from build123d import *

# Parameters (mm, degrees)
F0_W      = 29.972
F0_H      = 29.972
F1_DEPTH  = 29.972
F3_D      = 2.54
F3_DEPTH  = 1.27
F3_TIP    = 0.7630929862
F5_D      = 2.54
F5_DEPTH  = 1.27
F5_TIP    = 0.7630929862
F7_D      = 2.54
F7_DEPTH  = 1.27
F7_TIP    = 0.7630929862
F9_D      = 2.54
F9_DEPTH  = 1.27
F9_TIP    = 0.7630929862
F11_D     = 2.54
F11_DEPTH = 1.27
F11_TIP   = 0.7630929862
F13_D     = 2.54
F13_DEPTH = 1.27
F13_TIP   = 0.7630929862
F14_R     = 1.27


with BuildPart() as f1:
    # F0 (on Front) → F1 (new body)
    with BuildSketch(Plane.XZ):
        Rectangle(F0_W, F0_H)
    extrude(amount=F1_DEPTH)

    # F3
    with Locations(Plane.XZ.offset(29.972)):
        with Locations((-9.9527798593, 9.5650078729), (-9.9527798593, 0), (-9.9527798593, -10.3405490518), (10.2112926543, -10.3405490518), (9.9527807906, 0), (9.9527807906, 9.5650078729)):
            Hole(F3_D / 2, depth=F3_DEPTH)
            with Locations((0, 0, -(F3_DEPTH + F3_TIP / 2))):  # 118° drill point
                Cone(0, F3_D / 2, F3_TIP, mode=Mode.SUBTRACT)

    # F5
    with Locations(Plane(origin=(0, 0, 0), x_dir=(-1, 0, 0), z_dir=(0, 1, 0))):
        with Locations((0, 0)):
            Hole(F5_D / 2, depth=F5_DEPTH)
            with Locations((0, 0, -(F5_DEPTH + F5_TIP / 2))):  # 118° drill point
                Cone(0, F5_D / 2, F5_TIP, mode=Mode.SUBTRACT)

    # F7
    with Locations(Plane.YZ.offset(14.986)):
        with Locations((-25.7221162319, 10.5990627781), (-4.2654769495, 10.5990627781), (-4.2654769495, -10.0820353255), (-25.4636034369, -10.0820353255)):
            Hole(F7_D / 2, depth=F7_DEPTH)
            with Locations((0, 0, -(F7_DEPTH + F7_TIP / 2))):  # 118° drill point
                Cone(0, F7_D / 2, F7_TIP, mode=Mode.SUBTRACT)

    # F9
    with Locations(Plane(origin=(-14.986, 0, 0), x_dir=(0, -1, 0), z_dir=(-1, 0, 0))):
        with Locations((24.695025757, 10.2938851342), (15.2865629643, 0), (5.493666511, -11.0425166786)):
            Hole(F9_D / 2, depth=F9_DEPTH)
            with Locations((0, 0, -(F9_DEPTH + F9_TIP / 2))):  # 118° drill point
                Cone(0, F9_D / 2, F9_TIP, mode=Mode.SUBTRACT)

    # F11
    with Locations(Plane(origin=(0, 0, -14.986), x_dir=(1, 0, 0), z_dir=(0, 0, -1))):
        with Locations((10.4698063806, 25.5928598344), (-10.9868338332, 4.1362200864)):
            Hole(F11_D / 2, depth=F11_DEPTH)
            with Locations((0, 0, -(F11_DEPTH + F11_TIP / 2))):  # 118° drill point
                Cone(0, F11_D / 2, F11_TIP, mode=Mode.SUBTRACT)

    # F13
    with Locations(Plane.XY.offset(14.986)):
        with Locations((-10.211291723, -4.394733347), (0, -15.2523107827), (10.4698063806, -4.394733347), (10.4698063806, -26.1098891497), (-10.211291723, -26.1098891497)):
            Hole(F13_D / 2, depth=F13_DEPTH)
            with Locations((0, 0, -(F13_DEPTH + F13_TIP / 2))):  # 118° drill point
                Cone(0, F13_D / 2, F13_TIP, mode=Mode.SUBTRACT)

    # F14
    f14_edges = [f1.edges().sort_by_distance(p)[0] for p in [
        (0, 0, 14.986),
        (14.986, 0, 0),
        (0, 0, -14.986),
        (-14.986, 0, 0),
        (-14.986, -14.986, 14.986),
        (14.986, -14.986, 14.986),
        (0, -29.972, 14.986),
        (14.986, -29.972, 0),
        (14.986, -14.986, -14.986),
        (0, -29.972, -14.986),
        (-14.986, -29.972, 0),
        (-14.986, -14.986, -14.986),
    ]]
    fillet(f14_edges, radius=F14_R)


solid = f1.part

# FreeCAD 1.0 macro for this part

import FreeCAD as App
import Part
import Sketcher
Q = App.Units.Quantity


def edges_at(feature, points):
    """Names of the edges that pass closest to the given points."""
    edges = feature.Shape.Edges
    near = lambda p: min(range(len(edges)), key=lambda i: edges[i].distToShape(Part.Vertex(*p))[0])
    return sorted({f"Edge{near(p) + 1}" for p in points})


def add_polygon(sketch, points):
    """Adds a closed chain of lines whose ends are joined by coincident constraints."""
    first, n = sketch.GeometryCount, len(points)
    for a, b in zip(points, points[1:] + points[:1]):
        sketch.addGeometry(Part.LineSegment(App.Vector(*a, 0), App.Vector(*b, 0)), False)
    for i in range(n):
        sketch.addConstraint(Sketcher.Constraint("Coincident", first + i, 2, first + (i + 1) % n, 1))

doc = App.newDocument("Part")
body = doc.addObject("PartDesign::Body", "Body")

# Sketch on XZ plane
sketch1 = body.newObject("Sketcher::SketchObject", "Sketch")
sketch1.AttachmentSupport = (doc.getObject("XZ_Plane"), [""])
sketch1.MapMode = "FlatFace"
add_polygon(sketch1, [(-15, 15), (-15, -15), (15, -15), (15, 15)])  # lines 0-3
sketch1.addConstraint([
    Sketcher.Constraint("Vertical", 0),
    Sketcher.Constraint("Horizontal", 1),
    Sketcher.Constraint("Vertical", 2),
    Sketcher.Constraint("Horizontal", 3),
    Sketcher.Constraint("Symmetric", 0, 2, 2, 2, -1, 1),
    Sketcher.Constraint("Equal", 3, 0),
    Sketcher.Constraint("DistanceX", 1, 1, 1, 2, Q("1.18 in")),
])
pad1 = body.newObject("PartDesign::Pad", "Pad")
pad1.Profile = sketch1
pad1.Length = Q("1.18 in")

# Sketch on XZ plane
sketch2 = body.newObject("Sketcher::SketchObject", "Sketch001")
sketch2.AttachmentSupport = (doc.getObject("XZ_Plane"), [""])
sketch2.MapMode = "FlatFace"
sketch2.AttachmentOffset = App.Placement(App.Vector(0, 0, 1.18 * 25.4), App.Rotation())
sketch2.addGeometry([
    Part.Circle(App.Vector(-10, 9.6, 0), App.Vector(0, 0, 1), 1.3),  # 0
    Part.Circle(App.Vector(-10, 0, 0), App.Vector(0, 0, 1), 1.3),  # 1
    Part.Circle(App.Vector(-10, -10.3, 0), App.Vector(0, 0, 1), 1.3),  # 2
    Part.Circle(App.Vector(10.2, -10.3, 0), App.Vector(0, 0, 1), 1.3),  # 3
    Part.Circle(App.Vector(10, 0, 0), App.Vector(0, 0, 1), 1.3),  # 4
    Part.Circle(App.Vector(10, 9.6, 0), App.Vector(0, 0, 1), 1.3),  # 5
], False)
sketch2.addConstraint([
    Sketcher.Constraint("Equal", 0, 1),
    Sketcher.Constraint("Equal", 1, 2),
    Sketcher.Constraint("Equal", 2, 3),
    Sketcher.Constraint("Equal", 3, 4),
    Sketcher.Constraint("Equal", 4, 5),
    Sketcher.Constraint("Symmetric", 1, 3, 4, 3, -1, 1),
    Sketcher.Constraint("Symmetric", 0, 3, 5, 3, -2),
    Sketcher.Constraint("PointOnObject", 1, 3, -1),
    Sketcher.Constraint("Horizontal", 2, 3, 3, 3),
    Sketcher.Constraint("Vertical", 0, 3, 1, 3),
    Sketcher.Constraint("Vertical", 1, 3, 2, 3),
    Sketcher.Constraint("Diameter", 0, Q("0.1 in")),
    Sketcher.Constraint("DistanceX", 0, 3, -1, 1, 9.95278),
    Sketcher.Constraint("DistanceY", 2, 3, -1, 1, 10.340549),
    Sketcher.Constraint("DistanceX", 4, 3, 3, 3, 0.258512),
    Sketcher.Constraint("DistanceY", -1, 1, 0, 3, 9.565008),
])
doc.recompute()
hole = body.newObject("PartDesign::Hole", "Hole")
hole.Profile = sketch2
hole.ThreadType = "None"
hole.Diameter = Q("0.1 in")
hole.DepthType = "Dimension"
hole.Depth = Q("0.05 in")
hole.DrillPoint = "Angled"
hole.DrillPointAngle = 118

# Sketch on XZ plane
sketch3 = body.newObject("Sketcher::SketchObject", "Sketch002")
sketch3.AttachmentSupport = (doc.getObject("XZ_Plane"), [""])
sketch3.MapMode = "FlatFace"
sketch3.addGeometry(Part.Circle(App.Vector(0, 0, 0), App.Vector(0, 0, 1), 1.3), False)
sketch3.addConstraint([
    Sketcher.Constraint("Coincident", 0, 3, -1, 1),
    Sketcher.Constraint("Diameter", 0, Q("0.1 in")),
])
doc.recompute()
hole2 = body.newObject("PartDesign::Hole", "Hole001")
hole2.Profile = sketch3
hole2.ThreadType = "None"
hole2.Diameter = Q("0.1 in")
hole2.DepthType = "Dimension"
hole2.Depth = Q("0.05 in")
hole2.DrillPoint = "Angled"
hole2.DrillPointAngle = 118
hole2.Reversed = True

# Sketch on YZ plane
sketch4 = body.newObject("Sketcher::SketchObject", "Sketch003")
sketch4.AttachmentSupport = (doc.getObject("YZ_Plane"), [""])
sketch4.MapMode = "FlatFace"
sketch4.AttachmentOffset = App.Placement(App.Vector(0, 0, 0.59 * 25.4), App.Rotation())
sketch4.addGeometry([
    Part.Circle(App.Vector(-25.7, 10.6, 0), App.Vector(0, 0, 1), 1.3),
    Part.Circle(App.Vector(-4.3, 10.6, 0), App.Vector(0, 0, 1), 1.3),
    Part.Circle(App.Vector(-4.3, -10.1, 0), App.Vector(0, 0, 1), 1.3),
    Part.Circle(App.Vector(-25.5, -10.1, 0), App.Vector(0, 0, 1), 1.3),
], False)
sketch4.addConstraint([
    Sketcher.Constraint("Equal", 0, 1),
    Sketcher.Constraint("Equal", 1, 2),
    Sketcher.Constraint("Equal", 2, 3),
    Sketcher.Constraint("Horizontal", 0, 3, 1, 3),
    Sketcher.Constraint("Horizontal", 2, 3, 3, 3),
    Sketcher.Constraint("Vertical", 1, 3, 2, 3),
    Sketcher.Constraint("Diameter", 0, Q("0.1 in")),
    Sketcher.Constraint("DistanceY", 2, 3, 1, 3, 20.681098),
    Sketcher.Constraint("DistanceX", 0, 3, 1, 3, 21.456639),
    Sketcher.Constraint("DistanceX", 0, 3, -1, 1, 25.722116),
    Sketcher.Constraint("DistanceY", -1, 1, 0, 3, 10.599063),
    Sketcher.Constraint("DistanceX", 3, 3, -1, 1, 25.463603),
])
doc.recompute()
hole3 = body.newObject("PartDesign::Hole", "Hole002")
hole3.Profile = sketch4
hole3.ThreadType = "None"
hole3.Diameter = Q("0.1 in")
hole3.DepthType = "Dimension"
hole3.Depth = Q("0.05 in")
hole3.DrillPoint = "Angled"
hole3.DrillPointAngle = 118

# Sketch on YZ plane
sketch5 = body.newObject("Sketcher::SketchObject", "Sketch004")
sketch5.AttachmentSupport = (doc.getObject("YZ_Plane"), [""])
sketch5.MapMode = "FlatFace"
sketch5.AttachmentOffset = App.Placement(App.Vector(0, 0, -0.59 * 25.4), App.Rotation())
sketch5.addGeometry([
    Part.Circle(App.Vector(-24.7, 10.3, 0), App.Vector(0, 0, 1), 1.3),
    Part.Circle(App.Vector(-15.3, 0, 0), App.Vector(0, 0, 1), 1.3),
    Part.Circle(App.Vector(-5.5, -11, 0), App.Vector(0, 0, 1), 1.3),
], False)
sketch5.addConstraint([
    Sketcher.Constraint("Equal", 0, 1),
    Sketcher.Constraint("Equal", 1, 2),
    Sketcher.Constraint("PointOnObject", 1, 3, -1),
    Sketcher.Constraint("Diameter", 0, Q("0.1 in")),
    Sketcher.Constraint("DistanceY", 2, 3, 0, 3, 21.336402),
    Sketcher.Constraint("DistanceX", 0, 3, 2, 3, 19.201359),
    Sketcher.Constraint("DistanceX", 0, 3, -1, 1, 24.695026),
    Sketcher.Constraint("DistanceY", -1, 1, 0, 3, 10.293885),
    Sketcher.Constraint("DistanceX", 1, 3, -1, 1, 15.286563),
])
doc.recompute()
hole4 = body.newObject("PartDesign::Hole", "Hole003")
hole4.Profile = sketch5
hole4.ThreadType = "None"
hole4.Diameter = Q("0.1 in")
hole4.DepthType = "Dimension"
hole4.Depth = Q("0.05 in")
hole4.DrillPoint = "Angled"
hole4.DrillPointAngle = 118
hole4.Reversed = True

# Sketch on XY plane
sketch6 = body.newObject("Sketcher::SketchObject", "Sketch005")
sketch6.AttachmentSupport = (doc.getObject("XY_Plane"), [""])
sketch6.MapMode = "FlatFace"
sketch6.AttachmentOffset = App.Placement(App.Vector(0, 0, -0.59 * 25.4), App.Rotation())
sketch6.addGeometry([
    Part.Circle(App.Vector(10.5, -25.6, 0), App.Vector(0, 0, 1), 1.3),
    Part.Circle(App.Vector(-11, -4.1, 0), App.Vector(0, 0, 1), 1.3),
], False)
sketch6.addConstraint([
    Sketcher.Constraint("Equal", 0, 1),
    Sketcher.Constraint("Diameter", 0, Q("0.1 in")),
    Sketcher.Constraint("DistanceY", 0, 3, -1, 1, 25.59286),
    Sketcher.Constraint("DistanceY", 1, 3, -1, 1, 4.13622),
    Sketcher.Constraint("DistanceX", 1, 3, 0, 3, 21.45664),
    Sketcher.Constraint("DistanceX", -1, 1, 0, 3, 10.469806),
])
doc.recompute()
hole5 = body.newObject("PartDesign::Hole", "Hole004")
hole5.Profile = sketch6
hole5.ThreadType = "None"
hole5.Diameter = Q("0.1 in")
hole5.DepthType = "Dimension"
hole5.Depth = Q("0.05 in")
hole5.DrillPoint = "Angled"
hole5.DrillPointAngle = 118
hole5.Reversed = True

# Sketch on XY plane
sketch7 = body.newObject("Sketcher::SketchObject", "Sketch006")
sketch7.AttachmentSupport = (doc.getObject("XY_Plane"), [""])
sketch7.MapMode = "FlatFace"
sketch7.AttachmentOffset = App.Placement(App.Vector(0, 0, 0.59 * 25.4), App.Rotation())
sketch7.addGeometry([
    Part.Circle(App.Vector(-10.2, -4.4, 0), App.Vector(0, 0, 1), 1.3),  # 0
    Part.Circle(App.Vector(0, -15.3, 0), App.Vector(0, 0, 1), 1.3),  # 1
    Part.Circle(App.Vector(10.5, -4.4, 0), App.Vector(0, 0, 1), 1.3),  # 2
    Part.Circle(App.Vector(10.5, -26.1, 0), App.Vector(0, 0, 1), 1.3),  # 3
    Part.Circle(App.Vector(-10.2, -26.1, 0), App.Vector(0, 0, 1), 1.3),  # 4
], False)
sketch7.addConstraint([
    Sketcher.Constraint("Equal", 0, 1),
    Sketcher.Constraint("Equal", 1, 2),
    Sketcher.Constraint("Equal", 2, 3),
    Sketcher.Constraint("Equal", 3, 4),
    Sketcher.Constraint("PointOnObject", 1, 3, -2),
    Sketcher.Constraint("Horizontal", 0, 3, 2, 3),
    Sketcher.Constraint("Horizontal", 3, 3, 4, 3),
    Sketcher.Constraint("Vertical", 2, 3, 3, 3),
    Sketcher.Constraint("Vertical", 0, 3, 4, 3),
    Sketcher.Constraint("Diameter", 0, Q("0.1 in")),
    Sketcher.Constraint("DistanceX", 0, 3, 2, 3, 20.681098),
    Sketcher.Constraint("DistanceX", 0, 3, -1, 1, 10.211292),
    Sketcher.Constraint("DistanceY", 1, 3, -1, 1, 15.252311),
    Sketcher.Constraint("DistanceY", 3, 3, -1, 1, 26.109889),
    Sketcher.Constraint("DistanceY", 0, 3, -1, 1, 4.394733),
])
doc.recompute()
hole6 = body.newObject("PartDesign::Hole", "Hole005")
hole6.Profile = sketch7
hole6.ThreadType = "None"
hole6.Diameter = Q("0.1 in")
hole6.DepthType = "Dimension"
hole6.Depth = Q("0.05 in")
hole6.DrillPoint = "Angled"
hole6.DrillPointAngle = 118
doc.recompute()

fillet = body.newObject("PartDesign::Fillet", "Fillet")
fillet.Base = (hole6, edges_at(hole6, [
    (0, 0, 14.986),
    (14.986, 0, 0),
    (0, 0, -14.986),
    (-14.986, 0, 0),
    (-14.986, -14.986, 14.986),
    (14.986, -14.986, 14.986),
    (0, -29.972, 14.986),
    (14.986, -29.972, 0),
    (14.986, -14.986, -14.986),
    (0, -29.972, -14.986),
    (-14.986, -29.972, 0),
    (-14.986, -14.986, -14.986),
]))
fillet.Radius = Q("0.05 in")

doc.recompute()
